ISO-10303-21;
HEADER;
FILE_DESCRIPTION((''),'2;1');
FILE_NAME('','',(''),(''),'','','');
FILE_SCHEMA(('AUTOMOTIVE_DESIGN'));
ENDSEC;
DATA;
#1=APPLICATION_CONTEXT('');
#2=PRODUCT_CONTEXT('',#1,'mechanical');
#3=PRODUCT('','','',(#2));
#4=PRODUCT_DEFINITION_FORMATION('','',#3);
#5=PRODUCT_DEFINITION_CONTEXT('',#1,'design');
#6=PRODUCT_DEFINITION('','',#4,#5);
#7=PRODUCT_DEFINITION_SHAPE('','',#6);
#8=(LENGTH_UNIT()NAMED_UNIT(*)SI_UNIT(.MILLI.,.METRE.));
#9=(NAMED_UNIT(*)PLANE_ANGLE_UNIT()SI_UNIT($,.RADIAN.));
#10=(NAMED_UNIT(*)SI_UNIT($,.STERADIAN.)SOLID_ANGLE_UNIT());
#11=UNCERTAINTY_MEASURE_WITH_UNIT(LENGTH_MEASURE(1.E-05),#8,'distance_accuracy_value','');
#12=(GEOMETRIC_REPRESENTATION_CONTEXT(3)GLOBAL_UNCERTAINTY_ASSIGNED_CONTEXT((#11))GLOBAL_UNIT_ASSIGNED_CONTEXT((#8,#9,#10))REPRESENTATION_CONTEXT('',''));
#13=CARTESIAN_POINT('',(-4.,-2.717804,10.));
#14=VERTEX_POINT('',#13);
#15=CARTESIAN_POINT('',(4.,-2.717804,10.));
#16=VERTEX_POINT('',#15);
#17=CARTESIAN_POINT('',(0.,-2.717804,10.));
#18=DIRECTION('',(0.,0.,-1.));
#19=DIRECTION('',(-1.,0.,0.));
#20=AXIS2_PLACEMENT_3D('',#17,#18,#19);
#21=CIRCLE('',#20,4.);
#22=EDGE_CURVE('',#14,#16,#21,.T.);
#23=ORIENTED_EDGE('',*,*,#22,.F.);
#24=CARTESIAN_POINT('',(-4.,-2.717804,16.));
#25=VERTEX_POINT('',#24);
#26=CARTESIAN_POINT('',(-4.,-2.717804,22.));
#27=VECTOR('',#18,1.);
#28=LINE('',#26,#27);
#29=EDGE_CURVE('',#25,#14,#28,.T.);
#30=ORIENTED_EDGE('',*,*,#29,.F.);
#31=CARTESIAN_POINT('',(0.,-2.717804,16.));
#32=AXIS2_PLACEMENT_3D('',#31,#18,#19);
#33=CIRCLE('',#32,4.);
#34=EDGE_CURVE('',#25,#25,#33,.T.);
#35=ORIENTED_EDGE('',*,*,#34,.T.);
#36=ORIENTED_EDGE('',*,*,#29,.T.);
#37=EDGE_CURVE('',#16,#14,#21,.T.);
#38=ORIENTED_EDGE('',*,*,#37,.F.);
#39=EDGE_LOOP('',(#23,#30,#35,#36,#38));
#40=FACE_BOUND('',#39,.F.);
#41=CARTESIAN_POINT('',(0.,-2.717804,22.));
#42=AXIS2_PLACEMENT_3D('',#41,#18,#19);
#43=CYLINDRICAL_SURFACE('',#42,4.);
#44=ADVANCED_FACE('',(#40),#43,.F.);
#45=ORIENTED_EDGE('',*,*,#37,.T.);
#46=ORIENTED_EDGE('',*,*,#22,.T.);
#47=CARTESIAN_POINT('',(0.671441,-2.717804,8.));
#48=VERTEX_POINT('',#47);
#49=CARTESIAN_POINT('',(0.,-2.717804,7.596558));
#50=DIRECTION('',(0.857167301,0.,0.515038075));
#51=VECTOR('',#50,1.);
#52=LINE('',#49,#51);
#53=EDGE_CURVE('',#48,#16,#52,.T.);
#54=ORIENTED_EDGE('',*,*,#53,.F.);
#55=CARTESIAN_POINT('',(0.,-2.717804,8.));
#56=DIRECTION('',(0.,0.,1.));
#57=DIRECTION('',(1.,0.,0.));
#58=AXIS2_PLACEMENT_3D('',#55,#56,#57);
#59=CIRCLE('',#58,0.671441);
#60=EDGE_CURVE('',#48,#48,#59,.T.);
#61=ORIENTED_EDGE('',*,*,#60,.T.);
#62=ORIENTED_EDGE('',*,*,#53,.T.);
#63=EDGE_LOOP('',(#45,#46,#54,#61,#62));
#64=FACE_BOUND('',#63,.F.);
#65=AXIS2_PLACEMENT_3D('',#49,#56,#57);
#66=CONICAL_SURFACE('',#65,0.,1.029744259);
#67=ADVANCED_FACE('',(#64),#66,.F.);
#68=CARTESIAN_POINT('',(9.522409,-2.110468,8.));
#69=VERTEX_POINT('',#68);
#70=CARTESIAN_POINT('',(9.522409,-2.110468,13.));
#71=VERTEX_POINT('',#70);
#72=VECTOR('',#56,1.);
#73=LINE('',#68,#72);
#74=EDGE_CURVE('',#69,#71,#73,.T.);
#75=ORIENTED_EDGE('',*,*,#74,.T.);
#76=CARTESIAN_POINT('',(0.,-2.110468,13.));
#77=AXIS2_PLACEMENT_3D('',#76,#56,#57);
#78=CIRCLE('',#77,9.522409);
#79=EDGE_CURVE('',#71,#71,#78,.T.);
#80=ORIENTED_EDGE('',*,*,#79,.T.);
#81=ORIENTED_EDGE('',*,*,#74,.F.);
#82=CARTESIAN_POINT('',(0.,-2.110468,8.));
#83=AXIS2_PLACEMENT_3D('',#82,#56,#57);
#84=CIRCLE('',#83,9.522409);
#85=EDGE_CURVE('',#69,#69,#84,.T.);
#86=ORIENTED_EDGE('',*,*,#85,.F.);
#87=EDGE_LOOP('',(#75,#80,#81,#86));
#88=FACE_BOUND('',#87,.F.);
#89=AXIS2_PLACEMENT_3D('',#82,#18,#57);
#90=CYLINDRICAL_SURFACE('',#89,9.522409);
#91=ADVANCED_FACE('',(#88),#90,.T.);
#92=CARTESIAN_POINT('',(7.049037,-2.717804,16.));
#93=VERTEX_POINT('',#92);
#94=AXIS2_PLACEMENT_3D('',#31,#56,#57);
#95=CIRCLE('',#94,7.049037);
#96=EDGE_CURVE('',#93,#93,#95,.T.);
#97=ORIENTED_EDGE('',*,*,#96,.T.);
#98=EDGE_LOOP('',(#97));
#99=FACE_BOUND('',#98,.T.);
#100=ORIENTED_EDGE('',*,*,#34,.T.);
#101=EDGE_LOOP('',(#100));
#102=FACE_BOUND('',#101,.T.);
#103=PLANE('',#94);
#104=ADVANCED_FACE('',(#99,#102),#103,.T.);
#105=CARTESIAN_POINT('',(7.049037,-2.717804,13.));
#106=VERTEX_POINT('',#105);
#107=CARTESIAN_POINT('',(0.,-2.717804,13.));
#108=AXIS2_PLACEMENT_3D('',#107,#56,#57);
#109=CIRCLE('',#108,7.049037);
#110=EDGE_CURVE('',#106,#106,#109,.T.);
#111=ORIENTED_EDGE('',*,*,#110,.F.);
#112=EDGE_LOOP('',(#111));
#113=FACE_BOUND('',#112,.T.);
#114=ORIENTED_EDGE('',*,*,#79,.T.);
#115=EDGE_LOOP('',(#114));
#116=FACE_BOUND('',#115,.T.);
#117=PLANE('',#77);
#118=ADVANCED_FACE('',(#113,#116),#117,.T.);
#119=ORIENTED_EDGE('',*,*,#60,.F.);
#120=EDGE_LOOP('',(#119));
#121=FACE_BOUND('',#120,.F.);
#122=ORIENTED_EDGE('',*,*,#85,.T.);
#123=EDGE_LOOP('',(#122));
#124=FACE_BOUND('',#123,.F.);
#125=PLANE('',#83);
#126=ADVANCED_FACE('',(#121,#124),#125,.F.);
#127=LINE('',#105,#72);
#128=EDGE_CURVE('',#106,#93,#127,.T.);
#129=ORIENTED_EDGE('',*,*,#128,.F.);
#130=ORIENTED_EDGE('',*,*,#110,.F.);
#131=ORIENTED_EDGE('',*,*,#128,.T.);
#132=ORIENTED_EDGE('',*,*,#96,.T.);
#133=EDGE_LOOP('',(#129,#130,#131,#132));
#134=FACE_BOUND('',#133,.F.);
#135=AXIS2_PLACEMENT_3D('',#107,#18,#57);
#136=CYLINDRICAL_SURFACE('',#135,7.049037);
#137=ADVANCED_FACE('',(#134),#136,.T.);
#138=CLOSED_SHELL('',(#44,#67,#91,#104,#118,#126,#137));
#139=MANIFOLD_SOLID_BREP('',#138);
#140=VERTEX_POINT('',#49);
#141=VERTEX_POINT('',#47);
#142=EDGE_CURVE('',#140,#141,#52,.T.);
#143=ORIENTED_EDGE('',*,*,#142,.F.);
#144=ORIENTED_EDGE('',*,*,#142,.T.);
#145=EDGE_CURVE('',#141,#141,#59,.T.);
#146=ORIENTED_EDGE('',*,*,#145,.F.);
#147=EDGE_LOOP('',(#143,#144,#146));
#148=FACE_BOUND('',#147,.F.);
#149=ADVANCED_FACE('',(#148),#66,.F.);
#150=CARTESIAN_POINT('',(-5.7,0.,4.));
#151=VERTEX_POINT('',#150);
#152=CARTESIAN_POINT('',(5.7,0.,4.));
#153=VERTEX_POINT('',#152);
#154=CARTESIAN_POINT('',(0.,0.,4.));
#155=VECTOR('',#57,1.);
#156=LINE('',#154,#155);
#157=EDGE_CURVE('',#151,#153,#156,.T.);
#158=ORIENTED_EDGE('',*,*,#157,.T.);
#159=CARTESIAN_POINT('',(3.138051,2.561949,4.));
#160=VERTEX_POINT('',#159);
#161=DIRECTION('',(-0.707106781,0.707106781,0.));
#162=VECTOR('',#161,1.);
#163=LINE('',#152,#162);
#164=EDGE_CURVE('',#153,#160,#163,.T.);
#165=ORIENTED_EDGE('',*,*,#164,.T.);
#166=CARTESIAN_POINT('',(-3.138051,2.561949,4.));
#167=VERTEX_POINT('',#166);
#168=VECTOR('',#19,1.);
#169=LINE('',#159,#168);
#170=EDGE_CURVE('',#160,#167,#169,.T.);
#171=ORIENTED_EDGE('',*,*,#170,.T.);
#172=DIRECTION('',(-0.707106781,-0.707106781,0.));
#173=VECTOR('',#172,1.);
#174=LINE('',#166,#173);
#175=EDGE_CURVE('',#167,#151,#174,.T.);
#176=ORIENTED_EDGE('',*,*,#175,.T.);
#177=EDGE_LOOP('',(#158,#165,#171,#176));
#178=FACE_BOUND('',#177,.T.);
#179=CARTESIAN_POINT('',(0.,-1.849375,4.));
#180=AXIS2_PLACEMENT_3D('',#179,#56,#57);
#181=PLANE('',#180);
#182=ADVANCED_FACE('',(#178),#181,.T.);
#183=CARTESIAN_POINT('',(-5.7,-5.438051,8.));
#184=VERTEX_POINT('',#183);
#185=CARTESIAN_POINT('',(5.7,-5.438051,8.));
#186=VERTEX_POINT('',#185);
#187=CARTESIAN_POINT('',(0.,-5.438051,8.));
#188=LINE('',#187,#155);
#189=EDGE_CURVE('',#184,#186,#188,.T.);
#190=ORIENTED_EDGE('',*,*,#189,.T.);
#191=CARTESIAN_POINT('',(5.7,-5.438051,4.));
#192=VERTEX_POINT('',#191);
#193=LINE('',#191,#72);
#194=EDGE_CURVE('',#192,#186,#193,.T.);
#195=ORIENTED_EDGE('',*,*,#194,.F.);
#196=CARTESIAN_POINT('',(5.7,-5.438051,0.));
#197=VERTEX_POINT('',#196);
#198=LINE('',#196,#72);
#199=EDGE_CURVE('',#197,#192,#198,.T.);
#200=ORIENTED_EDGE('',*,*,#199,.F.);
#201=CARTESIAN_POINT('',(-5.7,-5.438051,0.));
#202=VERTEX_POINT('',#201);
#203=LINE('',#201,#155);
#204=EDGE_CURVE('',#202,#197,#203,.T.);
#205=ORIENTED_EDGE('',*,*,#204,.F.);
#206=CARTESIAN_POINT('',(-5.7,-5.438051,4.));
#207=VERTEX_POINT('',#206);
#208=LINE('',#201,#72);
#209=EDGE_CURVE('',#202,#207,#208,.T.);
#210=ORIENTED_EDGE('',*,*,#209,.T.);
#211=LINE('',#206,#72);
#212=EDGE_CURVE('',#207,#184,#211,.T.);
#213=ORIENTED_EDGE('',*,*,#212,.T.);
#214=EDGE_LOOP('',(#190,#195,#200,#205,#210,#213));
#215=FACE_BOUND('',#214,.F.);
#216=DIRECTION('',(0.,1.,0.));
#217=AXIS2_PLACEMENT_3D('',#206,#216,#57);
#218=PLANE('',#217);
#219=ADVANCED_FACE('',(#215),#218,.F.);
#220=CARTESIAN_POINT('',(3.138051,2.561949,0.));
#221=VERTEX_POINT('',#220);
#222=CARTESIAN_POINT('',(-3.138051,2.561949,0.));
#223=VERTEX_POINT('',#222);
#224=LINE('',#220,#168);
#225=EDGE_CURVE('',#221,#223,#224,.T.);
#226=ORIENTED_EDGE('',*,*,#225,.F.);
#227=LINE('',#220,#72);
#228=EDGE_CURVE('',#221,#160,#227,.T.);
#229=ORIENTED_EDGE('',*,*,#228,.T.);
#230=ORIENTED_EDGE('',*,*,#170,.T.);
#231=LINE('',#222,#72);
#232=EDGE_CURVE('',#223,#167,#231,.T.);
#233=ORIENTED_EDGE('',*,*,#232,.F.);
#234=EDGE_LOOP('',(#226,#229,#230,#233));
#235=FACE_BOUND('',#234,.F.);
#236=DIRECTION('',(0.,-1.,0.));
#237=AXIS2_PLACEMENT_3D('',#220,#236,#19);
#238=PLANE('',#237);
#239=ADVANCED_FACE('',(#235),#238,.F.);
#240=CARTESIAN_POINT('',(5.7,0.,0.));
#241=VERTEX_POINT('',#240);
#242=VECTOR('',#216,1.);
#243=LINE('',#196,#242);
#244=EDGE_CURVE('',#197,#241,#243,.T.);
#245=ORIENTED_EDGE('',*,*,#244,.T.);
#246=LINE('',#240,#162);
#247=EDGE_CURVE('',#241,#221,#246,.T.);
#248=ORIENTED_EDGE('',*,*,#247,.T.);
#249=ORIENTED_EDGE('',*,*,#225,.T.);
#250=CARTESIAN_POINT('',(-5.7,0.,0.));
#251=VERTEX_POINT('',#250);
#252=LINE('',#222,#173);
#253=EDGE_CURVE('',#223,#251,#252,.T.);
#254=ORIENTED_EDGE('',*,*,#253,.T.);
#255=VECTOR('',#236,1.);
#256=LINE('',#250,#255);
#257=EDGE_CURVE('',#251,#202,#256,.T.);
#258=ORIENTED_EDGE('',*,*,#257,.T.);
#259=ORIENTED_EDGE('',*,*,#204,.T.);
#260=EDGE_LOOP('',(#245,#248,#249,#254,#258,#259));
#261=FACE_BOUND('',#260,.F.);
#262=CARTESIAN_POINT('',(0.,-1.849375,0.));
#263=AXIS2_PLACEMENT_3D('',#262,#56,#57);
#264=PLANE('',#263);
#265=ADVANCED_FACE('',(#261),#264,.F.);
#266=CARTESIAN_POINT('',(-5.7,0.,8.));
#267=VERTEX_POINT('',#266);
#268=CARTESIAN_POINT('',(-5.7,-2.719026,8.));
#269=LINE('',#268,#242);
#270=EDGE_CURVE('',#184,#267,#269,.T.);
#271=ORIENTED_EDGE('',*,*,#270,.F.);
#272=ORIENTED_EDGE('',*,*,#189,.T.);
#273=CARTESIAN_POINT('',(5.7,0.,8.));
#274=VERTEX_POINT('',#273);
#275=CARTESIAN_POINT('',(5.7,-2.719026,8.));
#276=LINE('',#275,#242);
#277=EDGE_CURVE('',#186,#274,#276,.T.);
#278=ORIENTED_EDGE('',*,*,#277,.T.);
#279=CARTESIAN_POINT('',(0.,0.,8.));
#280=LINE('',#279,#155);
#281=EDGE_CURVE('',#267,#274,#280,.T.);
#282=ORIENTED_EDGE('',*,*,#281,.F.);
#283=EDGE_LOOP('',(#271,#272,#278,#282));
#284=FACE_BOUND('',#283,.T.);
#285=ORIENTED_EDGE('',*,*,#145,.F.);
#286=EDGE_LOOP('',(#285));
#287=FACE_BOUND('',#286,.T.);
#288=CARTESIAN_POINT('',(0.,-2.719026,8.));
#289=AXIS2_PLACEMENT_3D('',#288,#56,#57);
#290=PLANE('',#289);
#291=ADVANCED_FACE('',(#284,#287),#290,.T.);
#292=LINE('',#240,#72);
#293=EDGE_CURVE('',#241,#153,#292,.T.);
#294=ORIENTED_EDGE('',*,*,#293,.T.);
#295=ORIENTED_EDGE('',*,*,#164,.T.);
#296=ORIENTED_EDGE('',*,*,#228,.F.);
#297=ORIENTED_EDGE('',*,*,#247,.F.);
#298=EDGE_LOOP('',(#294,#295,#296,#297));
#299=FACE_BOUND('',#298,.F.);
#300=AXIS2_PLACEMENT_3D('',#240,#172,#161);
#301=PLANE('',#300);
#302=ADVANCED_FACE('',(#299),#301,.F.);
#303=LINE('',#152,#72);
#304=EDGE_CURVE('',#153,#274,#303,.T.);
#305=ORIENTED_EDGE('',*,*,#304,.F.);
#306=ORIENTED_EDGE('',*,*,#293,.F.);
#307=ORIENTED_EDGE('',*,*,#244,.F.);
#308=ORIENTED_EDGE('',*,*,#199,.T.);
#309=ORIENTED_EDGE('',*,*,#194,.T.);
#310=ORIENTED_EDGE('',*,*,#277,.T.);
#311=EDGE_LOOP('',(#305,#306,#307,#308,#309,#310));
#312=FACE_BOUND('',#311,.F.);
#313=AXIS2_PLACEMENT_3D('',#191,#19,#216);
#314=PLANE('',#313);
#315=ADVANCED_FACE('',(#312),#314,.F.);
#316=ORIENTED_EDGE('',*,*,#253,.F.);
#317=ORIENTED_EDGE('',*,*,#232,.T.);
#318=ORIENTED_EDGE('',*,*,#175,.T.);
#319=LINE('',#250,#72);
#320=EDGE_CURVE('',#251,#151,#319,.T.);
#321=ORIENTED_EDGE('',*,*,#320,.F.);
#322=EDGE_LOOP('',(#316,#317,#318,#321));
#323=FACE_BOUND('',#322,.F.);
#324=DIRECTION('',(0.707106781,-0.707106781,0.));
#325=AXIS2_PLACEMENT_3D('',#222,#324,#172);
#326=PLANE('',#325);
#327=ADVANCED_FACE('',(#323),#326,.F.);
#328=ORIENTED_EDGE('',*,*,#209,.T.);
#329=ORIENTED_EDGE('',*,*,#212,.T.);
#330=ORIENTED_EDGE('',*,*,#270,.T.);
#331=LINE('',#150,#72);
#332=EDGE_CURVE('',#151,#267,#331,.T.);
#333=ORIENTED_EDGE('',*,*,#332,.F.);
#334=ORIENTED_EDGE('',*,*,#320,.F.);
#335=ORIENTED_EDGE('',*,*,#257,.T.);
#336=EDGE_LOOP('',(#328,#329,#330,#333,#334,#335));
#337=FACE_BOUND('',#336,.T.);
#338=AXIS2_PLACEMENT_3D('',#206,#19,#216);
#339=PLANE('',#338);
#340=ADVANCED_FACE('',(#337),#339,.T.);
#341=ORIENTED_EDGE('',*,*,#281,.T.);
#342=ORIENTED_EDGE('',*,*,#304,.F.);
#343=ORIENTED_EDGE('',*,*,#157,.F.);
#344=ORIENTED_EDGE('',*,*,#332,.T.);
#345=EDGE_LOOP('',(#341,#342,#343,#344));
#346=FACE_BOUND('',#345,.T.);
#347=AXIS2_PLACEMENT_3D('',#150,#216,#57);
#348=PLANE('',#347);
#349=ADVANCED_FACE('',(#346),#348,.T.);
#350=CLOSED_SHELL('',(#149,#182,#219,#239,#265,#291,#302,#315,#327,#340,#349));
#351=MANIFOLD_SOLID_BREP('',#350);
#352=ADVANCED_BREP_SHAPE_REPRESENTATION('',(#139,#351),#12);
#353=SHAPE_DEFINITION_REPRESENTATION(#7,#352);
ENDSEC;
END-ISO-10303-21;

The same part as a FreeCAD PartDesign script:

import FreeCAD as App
import Part
import Sketcher
Q = App.Units.Quantity

doc = App.newDocument("Part")
body = doc.addObject("PartDesign::Body", "Body")

# Sketch on XY plane
sketch1 = body.newObject("Sketcher::SketchObject", "Sketch")
sketch1.AttachmentSupport = (doc.getObject("XY_Plane"), [""])
sketch1.MapMode = "FlatFace"
sketch1.addGeometry(Part.LineSegment(App.Vector(-5.7, 0, 0), App.Vector(-5.7, -5.4, 0)), False)
sketch1.addGeometry(Part.LineSegment(App.Vector(-5.7, -5.4, 0), App.Vector(5.7, -5.4, 0)), False)
sketch1.addGeometry(Part.LineSegment(App.Vector(5.7, -5.4, 0), App.Vector(5.7, 0, 0)), False)
sketch1.addGeometry(Part.LineSegment(App.Vector(5.7, 0, 0), App.Vector(3.1, 2.6, 0)), False)
sketch1.addGeometry(Part.LineSegment(App.Vector(3.1, 2.6, 0), App.Vector(-3.1, 2.6, 0)), False)
sketch1.addGeometry(Part.LineSegment(App.Vector(-3.1, 2.6, 0), App.Vector(-5.7, 0, 0)), False)
sketch1.addConstraint(Sketcher.Constraint("Coincident", 0, 2, 1, 1))
sketch1.addConstraint(Sketcher.Constraint("Coincident", 1, 2, 2, 1))
sketch1.addConstraint(Sketcher.Constraint("Coincident", 2, 2, 3, 1))
sketch1.addConstraint(Sketcher.Constraint("Coincident", 3, 2, 4, 1))
sketch1.addConstraint(Sketcher.Constraint("Coincident", 4, 2, 5, 1))
sketch1.addConstraint(Sketcher.Constraint("Coincident", 5, 2, 0, 1))
sketch1.addConstraint(Sketcher.Constraint("Vertical", 0))
sketch1.addConstraint(Sketcher.Constraint("Horizontal", 1))
sketch1.addConstraint(Sketcher.Constraint("Vertical", 2))
sketch1.addConstraint(Sketcher.Constraint("Horizontal", 4))
sketch1.addConstraint(Sketcher.Constraint("Symmetric", 2, 2, 5, 2, -1, 1))
sketch1.addConstraint(Sketcher.Constraint("PointOnObject", 2, 2, -1))
sketch1.addConstraint(Sketcher.Constraint("Perpendicular", 3, 5))
sketch1.addConstraint(Sketcher.Constraint("Equal", 3, 5))
sketch1.addConstraint(Sketcher.Constraint("DistanceX", 1, 1, 1, 2, Q("11.4 mm")))
sketch1.addConstraint(Sketcher.Constraint("DistanceY", 1, 2, 3, 2, Q("8 mm")))
sketch1.addConstraint(Sketcher.Constraint("DistanceY", 0, 2, 0, 1, Q("5.438051 mm")))
pad1 = body.newObject("PartDesign::Pad", "Pad")
pad1.Profile = sketch1
pad1.Length = 4

# Sketch on XY plane
sketch2 = body.newObject("Sketcher::SketchObject", "Sketch001")
sketch2.AttachmentSupport = (doc.getObject("XY_Plane"), [""])
sketch2.MapMode = "FlatFace"
sketch2.AttachmentOffset = App.Placement(App.Vector(0, 0, 4), App.Rotation())
sketch2.addGeometry(Part.LineSegment(App.Vector(-6, 0, 0), App.Vector(-6, -5, 0)), False)
sketch2.addGeometry(Part.LineSegment(App.Vector(-6, -5, 0), App.Vector(6, -5, 0)), False)
sketch2.addGeometry(Part.LineSegment(App.Vector(6, -5, 0), App.Vector(6, 0, 0)), False)
sketch2.addGeometry(Part.LineSegment(App.Vector(6, 0, 0), App.Vector(-6, 0, 0)), False)
sketch2.addConstraint(Sketcher.Constraint("Coincident", 0, 2, 1, 1))
sketch2.addConstraint(Sketcher.Constraint("Coincident", 1, 2, 2, 1))
sketch2.addConstraint(Sketcher.Constraint("Coincident", 2, 2, 3, 1))
sketch2.addConstraint(Sketcher.Constraint("Coincident", 3, 2, 0, 1))
sketch2.addConstraint(Sketcher.Constraint("Vertical", 0))
sketch2.addConstraint(Sketcher.Constraint("Horizontal", 1))
sketch2.addConstraint(Sketcher.Constraint("Vertical", 2))
sketch2.addConstraint(Sketcher.Constraint("Horizontal", 3))
sketch2.addConstraint(Sketcher.Constraint("Symmetric", 2, 2, 3, 2, -1, 1))
sketch2.addConstraint(Sketcher.Constraint("DistanceX", 1, 1, 1, 2, Q("11.4 mm")))
sketch2.addConstraint(Sketcher.Constraint("DistanceY", 0, 2, 0, 1, Q("5.438051 mm")))
pad2 = body.newObject("PartDesign::Pad", "Pad001")
pad2.Profile = sketch2
pad2.Length = 4

# Sketch on XY plane
sketch3 = body.newObject("Sketcher::SketchObject", "Sketch002")
sketch3.AttachmentSupport = (doc.getObject("XY_Plane"), [""])
sketch3.MapMode = "FlatFace"
sketch3.AttachmentOffset = App.Placement(App.Vector(0, 0, 16), App.Rotation())
sketch3.addGeometry(Part.Circle(App.Vector(0, -2.7, 0), App.Vector(0, 0, 1), 4), False)
sketch3.addConstraint(Sketcher.Constraint("PointOnObject", 0, 3, -2))
sketch3.addConstraint(Sketcher.Constraint("Diameter", 0, Q("8 mm")))
sketch3.addConstraint(Sketcher.Constraint("DistanceY", 0, 3, -1, 1, Q("2.717804 mm")))
doc.recompute()
hole = body.newObject("PartDesign::Hole", "Hole")
hole.Profile = sketch3
hole.ThreadType = "None"
hole.Diameter = 8
hole.DepthType = "Dimension"
hole.Depth = 6
hole.DrillPoint = "Angled"
hole.DrillPointAngle = 118
body2 = doc.addObject("PartDesign::Body", "Body001")

# Sketch on XY plane
sketch4 = body2.newObject("Sketcher::SketchObject", "Sketch003")
sketch4.AttachmentSupport = (doc.getObject("XY_Plane001"), [""])
sketch4.MapMode = "FlatFace"
sketch4.AttachmentOffset = App.Placement(App.Vector(0, 0, 8), App.Rotation())
sketch4.addGeometry(Part.Circle(App.Vector(0, -2, 0), App.Vector(0, 0, 1), 10), False)
sketch4.addConstraint(Sketcher.Constraint("PointOnObject", 0, 3, -2))
sketch4.addConstraint(Sketcher.Constraint("Diameter", 0, Q("19.044818 mm")))
sketch4.addConstraint(Sketcher.Constraint("DistanceY", 0, 3, -1, 1, Q("2.110468 mm")))
pad3 = body2.newObject("PartDesign::Pad", "Pad002")
pad3.Profile = sketch4
pad3.Length = 5

# Sketch on XY plane
sketch5 = body2.newObject("Sketcher::SketchObject", "Sketch004")
sketch5.AttachmentSupport = (doc.getObject("XY_Plane001"), [""])
sketch5.MapMode = "FlatFace"
sketch5.AttachmentOffset = App.Placement(App.Vector(0, 0, 13), App.Rotation())
sketch5.addGeometry(Part.Circle(App.Vector(0, -3, 0), App.Vector(0, 0, 1), 7), False)
sketch5.addConstraint(Sketcher.Constraint("PointOnObject", 0, 3, -2))
sketch5.addConstraint(Sketcher.Constraint("Diameter", 0, Q("14.098074 mm")))
sketch5.addConstraint(Sketcher.Constraint("DistanceY", 0, 3, -1, 1, Q("2.717804 mm")))
pad4 = body2.newObject("PartDesign::Pad", "Pad003")
pad4.Profile = sketch5
pad4.Length = 3

# Sketch on XY plane
sketch6 = body2.newObject("Sketcher::SketchObject", "Sketch005")
sketch6.AttachmentSupport = (doc.getObject("XY_Plane001"), [""])
sketch6.MapMode = "FlatFace"
sketch6.AttachmentOffset = App.Placement(App.Vector(0, 0, 16), App.Rotation())
sketch6.addGeometry(Part.Circle(App.Vector(0, -2.7, 0), App.Vector(0, 0, 1), 4), False)
sketch6.addConstraint(Sketcher.Constraint("PointOnObject", 0, 3, -2))
sketch6.addConstraint(Sketcher.Constraint("Diameter", 0, Q("8 mm")))
sketch6.addConstraint(Sketcher.Constraint("DistanceY", 0, 3, -1, 1, Q("2.717804 mm")))
doc.recompute()
hole2 = body2.newObject("PartDesign::Hole", "Hole001")
hole2.Profile = sketch6
hole2.ThreadType = "None"
hole2.Diameter = 8
hole2.DepthType = "Dimension"
hole2.Depth = 6
hole2.DrillPoint = "Angled"
hole2.DrillPointAngle = 118

doc.recompute()
